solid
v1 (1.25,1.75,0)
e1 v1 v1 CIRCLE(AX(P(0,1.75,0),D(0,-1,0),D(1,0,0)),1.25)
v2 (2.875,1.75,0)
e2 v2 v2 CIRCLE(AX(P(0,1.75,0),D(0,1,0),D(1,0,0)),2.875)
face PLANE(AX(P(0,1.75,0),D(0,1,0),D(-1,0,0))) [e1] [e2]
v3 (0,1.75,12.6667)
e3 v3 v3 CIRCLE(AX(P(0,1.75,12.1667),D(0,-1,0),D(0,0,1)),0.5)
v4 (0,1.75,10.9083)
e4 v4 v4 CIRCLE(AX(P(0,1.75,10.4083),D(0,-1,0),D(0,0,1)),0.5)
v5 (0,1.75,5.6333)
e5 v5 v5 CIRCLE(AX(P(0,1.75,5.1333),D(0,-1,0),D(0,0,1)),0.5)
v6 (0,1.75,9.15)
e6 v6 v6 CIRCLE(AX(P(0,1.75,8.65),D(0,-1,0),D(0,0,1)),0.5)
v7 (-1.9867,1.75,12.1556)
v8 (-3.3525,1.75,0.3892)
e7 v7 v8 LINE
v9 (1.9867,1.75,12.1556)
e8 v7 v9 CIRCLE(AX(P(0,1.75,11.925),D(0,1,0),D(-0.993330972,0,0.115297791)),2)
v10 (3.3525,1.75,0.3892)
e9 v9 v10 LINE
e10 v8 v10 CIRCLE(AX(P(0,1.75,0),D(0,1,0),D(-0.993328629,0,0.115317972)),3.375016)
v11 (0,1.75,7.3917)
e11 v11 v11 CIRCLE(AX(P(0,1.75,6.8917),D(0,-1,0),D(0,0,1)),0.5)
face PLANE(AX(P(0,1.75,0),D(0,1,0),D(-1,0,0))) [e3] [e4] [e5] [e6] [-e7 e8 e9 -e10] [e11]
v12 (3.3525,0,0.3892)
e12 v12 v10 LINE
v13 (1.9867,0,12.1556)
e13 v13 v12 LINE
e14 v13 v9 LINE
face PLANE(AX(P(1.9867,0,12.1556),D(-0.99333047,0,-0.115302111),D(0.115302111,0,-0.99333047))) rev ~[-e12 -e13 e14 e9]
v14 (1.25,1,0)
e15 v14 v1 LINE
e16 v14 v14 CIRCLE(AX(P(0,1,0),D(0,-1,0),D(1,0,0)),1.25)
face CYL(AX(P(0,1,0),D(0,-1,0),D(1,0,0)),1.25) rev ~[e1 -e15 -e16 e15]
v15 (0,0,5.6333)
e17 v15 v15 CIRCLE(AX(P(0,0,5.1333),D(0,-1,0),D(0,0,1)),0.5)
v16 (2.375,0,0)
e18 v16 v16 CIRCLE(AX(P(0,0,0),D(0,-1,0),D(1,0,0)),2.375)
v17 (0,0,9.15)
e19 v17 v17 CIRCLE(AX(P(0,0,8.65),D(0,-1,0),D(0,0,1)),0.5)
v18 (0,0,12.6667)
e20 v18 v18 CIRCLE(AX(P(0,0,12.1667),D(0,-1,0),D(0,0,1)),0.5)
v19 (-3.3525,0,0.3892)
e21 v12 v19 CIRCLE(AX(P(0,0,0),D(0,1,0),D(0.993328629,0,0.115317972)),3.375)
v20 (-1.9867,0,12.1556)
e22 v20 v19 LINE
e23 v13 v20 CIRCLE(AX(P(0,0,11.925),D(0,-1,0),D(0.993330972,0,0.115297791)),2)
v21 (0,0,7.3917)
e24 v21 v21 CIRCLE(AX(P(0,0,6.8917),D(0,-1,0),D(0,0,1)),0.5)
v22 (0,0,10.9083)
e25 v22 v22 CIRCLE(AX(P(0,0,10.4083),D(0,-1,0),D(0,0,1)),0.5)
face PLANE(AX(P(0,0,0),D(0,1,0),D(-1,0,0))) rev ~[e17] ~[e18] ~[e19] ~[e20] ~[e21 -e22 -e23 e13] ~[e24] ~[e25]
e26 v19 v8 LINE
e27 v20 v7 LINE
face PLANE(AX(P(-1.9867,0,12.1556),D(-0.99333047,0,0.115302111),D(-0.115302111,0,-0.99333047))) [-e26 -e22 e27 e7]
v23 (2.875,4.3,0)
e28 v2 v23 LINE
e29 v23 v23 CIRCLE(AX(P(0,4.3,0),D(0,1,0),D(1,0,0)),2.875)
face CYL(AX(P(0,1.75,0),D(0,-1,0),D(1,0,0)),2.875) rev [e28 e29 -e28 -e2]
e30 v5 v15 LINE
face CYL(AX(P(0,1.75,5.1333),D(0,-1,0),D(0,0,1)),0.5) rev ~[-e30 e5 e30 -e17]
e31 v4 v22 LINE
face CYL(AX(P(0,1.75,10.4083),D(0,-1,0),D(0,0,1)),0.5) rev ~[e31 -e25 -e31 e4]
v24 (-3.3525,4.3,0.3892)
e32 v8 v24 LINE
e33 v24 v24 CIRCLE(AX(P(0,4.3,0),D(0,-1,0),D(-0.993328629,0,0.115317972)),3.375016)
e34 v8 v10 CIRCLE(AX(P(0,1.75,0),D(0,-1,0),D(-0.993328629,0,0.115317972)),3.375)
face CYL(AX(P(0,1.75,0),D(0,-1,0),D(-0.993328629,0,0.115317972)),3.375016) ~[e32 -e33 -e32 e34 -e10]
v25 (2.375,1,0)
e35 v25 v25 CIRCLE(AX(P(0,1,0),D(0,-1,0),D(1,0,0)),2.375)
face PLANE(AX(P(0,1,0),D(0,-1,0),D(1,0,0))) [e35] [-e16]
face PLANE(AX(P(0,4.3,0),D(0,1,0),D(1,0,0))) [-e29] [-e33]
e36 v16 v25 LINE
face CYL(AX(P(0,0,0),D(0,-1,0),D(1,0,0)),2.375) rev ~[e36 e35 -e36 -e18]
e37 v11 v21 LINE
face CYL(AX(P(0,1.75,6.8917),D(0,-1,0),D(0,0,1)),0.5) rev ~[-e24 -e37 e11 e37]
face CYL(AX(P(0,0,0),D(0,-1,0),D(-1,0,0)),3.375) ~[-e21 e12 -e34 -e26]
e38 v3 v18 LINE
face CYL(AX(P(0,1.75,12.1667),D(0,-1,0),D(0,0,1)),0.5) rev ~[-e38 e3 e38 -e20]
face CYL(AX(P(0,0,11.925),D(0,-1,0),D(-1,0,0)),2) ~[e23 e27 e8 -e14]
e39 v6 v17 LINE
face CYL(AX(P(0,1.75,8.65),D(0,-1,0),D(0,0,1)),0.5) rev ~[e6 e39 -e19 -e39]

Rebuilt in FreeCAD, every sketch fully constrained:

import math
import FreeCAD as App
import Part
import Sketcher
from FreeCAD import Vector
Q = App.Units.Quantity

doc = App.newDocument("Part")
body = doc.addObject("PartDesign::Body", "Body")

sketch1 = doc.addObject("Sketcher::SketchObject", "Sketch")
body.addObject(sketch1)
sketch1.AttachmentSupport = (doc.XZ_Plane, [""])
sketch1.MapMode = "FlatFace"
sketch1.addGeometry([
    Part.LineSegment(Vector(-3.4, 0.4, 0), Vector(-2, 12.2, 0)),
    Part.ArcOfCircle(Part.Circle(Vector(0, 11.9, 0), Vector(0, 0, 1), 2), math.radians(7), math.radians(173)),
    Part.LineSegment(Vector(2, 12.2, 0), Vector(3.4, 0.4, 0)),
    Part.ArcOfCircle(Part.Circle(Vector(0, 0, 0), Vector(0, 0, 1), 3.4), math.radians(173), math.radians(367)),
], False)
sketch1.addConstraint([
    Sketcher.Constraint("Tangent", 0, 2, 1, 2),
    Sketcher.Constraint("Tangent", 1, 1, 2, 1),
    Sketcher.Constraint("Tangent", 2, 2, 3, 2),
    Sketcher.Constraint("Tangent", 3, 1, 0, 1),
    Sketcher.Constraint("Coincident", 3, 3, -1, 1),
    Sketcher.Constraint("PointOnObject", 1, 3, -2),
    Sketcher.Constraint("Radius", 1, 2.0),
    Sketcher.Constraint("Radius", 3, 3.375),
    Sketcher.Constraint("Angle", 0, Q("83.379 deg")),
])
pad1 = doc.addObject("PartDesign::Pad", "Pad")
body.addObject(pad1)
pad1.Profile = sketch1
pad1.Length = 1.75
pad1.Reversed = True

sketch2 = doc.addObject("Sketcher::SketchObject", "Sketch001")
body.addObject(sketch2)
sketch2.AttachmentSupport = (doc.XZ_Plane, [""])
sketch2.MapMode = "FlatFace"
sketch2.AttachmentOffset = App.Placement(Vector(0, 0, -1.75), App.Rotation())
sketch2.addGeometry([
    Part.Circle(Vector(0, 0, 0), Vector(0, 0, 1), 3.4),
    Part.Circle(Vector(0, 0, 0), Vector(0, 0, 1), 2.9),
], False)
sketch2.addConstraint([
    Sketcher.Constraint("Coincident", 0, 3, -1, 1),
    Sketcher.Constraint("Coincident", 1, 3, -1, 1),
    Sketcher.Constraint("Diameter", 1, 5.75),
    Sketcher.Constraint("Diameter", 0, 6.75),
])
pad2 = doc.addObject("PartDesign::Pad", "Pad001")
body.addObject(pad2)
pad2.Profile = sketch2
pad2.Length = 2.55
pad2.Reversed = True

sketch3 = doc.addObject("Sketcher::SketchObject", "Sketch002")
body.addObject(sketch3)
sketch3.AttachmentSupport = (doc.XZ_Plane, [""])
sketch3.MapMode = "FlatFace"
sketch3.addGeometry(Part.Circle(Vector(0, 0, 0), Vector(0, 0, 1), 2.4), False)
sketch3.addConstraint([
    Sketcher.Constraint("Coincident", 0, 3, -1, 1),
    Sketcher.Constraint("Diameter", 0, 4.75),
])
pocket1 = doc.addObject("PartDesign::Pocket", "Pocket")
body.addObject(pocket1)
pocket1.Profile = sketch3
pocket1.Length = 1

sketch4 = doc.addObject("Sketcher::SketchObject", "Sketch003")
body.addObject(sketch4)
sketch4.AttachmentSupport = (doc.XZ_Plane, [""])
sketch4.MapMode = "FlatFace"
sketch4.AttachmentOffset = App.Placement(Vector(0, 0, -1), App.Rotation())
sketch4.addGeometry(Part.Circle(Vector(0, 0, 0), Vector(0, 0, 1), 1.2), False)
sketch4.addConstraint([
    Sketcher.Constraint("Coincident", 0, 3, -1, 1),
    Sketcher.Constraint("Diameter", 0, 2.5),
])
pocket2 = doc.addObject("PartDesign::Pocket", "Pocket001")
body.addObject(pocket2)
pocket2.Profile = sketch4
pocket2.Type = "UpToFirst"

sketch5 = doc.addObject("Sketcher::SketchObject", "Sketch004")
body.addObject(sketch5)
sketch5.AttachmentSupport = (doc.XZ_Plane, [""])
sketch5.MapMode = "FlatFace"
sketch5.AttachmentOffset = App.Placement(Vector(0, 0, -1.75), App.Rotation())
sketch5.addGeometry([
    Part.Circle(Vector(0, 5.1, 0), Vector(0, 0, 1), 0.5),
    Part.Circle(Vector(0, 6.9, 0), Vector(0, 0, 1), 0.5),
    Part.Circle(Vector(0, 8.7, 0), Vector(0, 0, 1), 0.5),
    Part.Circle(Vector(0, 10.4, 0), Vector(0, 0, 1), 0.5),
    Part.Circle(Vector(0, 12.2, 0), Vector(0, 0, 1), 0.5),
], False)
sketch5.addConstraint([
    Sketcher.Constraint("Equal", 0, 1),
    Sketcher.Constraint("Equal", 1, 2),
    Sketcher.Constraint("Equal", 2, 3),
    Sketcher.Constraint("Equal", 3, 4),
    Sketcher.Constraint("PointOnObject", 0, 3, -2),
    Sketcher.Constraint("PointOnObject", 1, 3, -2),
    Sketcher.Constraint("PointOnObject", 2, 3, -2),
    Sketcher.Constraint("PointOnObject", 3, 3, -2),
    Sketcher.Constraint("PointOnObject", 4, 3, -2),
    Sketcher.Constraint("Diameter", 0, 1.0),
    Sketcher.Constraint("DistanceY", -1, 1, 2, 3, 8.65),
    Sketcher.Constraint("DistanceY", 0, 3, 3, 3, 5.275),
    Sketcher.Constraint("DistanceY", 1, 3, 4, 3, 5.275),
    Sketcher.Constraint("DistanceY", -1, 1, 0, 3, 5.1333),
    Sketcher.Constraint("DistanceY", -1, 1, 1, 3, 6.8917),
])
doc.recompute()
hole = doc.addObject("PartDesign::Hole", "Hole")
body.addObject(hole)
hole.Profile = sketch5
hole.ThreadType = "None"
hole.Diameter = 1
hole.DepthType = "ThroughAll"
hole.Reversed = True

doc.recompute()
